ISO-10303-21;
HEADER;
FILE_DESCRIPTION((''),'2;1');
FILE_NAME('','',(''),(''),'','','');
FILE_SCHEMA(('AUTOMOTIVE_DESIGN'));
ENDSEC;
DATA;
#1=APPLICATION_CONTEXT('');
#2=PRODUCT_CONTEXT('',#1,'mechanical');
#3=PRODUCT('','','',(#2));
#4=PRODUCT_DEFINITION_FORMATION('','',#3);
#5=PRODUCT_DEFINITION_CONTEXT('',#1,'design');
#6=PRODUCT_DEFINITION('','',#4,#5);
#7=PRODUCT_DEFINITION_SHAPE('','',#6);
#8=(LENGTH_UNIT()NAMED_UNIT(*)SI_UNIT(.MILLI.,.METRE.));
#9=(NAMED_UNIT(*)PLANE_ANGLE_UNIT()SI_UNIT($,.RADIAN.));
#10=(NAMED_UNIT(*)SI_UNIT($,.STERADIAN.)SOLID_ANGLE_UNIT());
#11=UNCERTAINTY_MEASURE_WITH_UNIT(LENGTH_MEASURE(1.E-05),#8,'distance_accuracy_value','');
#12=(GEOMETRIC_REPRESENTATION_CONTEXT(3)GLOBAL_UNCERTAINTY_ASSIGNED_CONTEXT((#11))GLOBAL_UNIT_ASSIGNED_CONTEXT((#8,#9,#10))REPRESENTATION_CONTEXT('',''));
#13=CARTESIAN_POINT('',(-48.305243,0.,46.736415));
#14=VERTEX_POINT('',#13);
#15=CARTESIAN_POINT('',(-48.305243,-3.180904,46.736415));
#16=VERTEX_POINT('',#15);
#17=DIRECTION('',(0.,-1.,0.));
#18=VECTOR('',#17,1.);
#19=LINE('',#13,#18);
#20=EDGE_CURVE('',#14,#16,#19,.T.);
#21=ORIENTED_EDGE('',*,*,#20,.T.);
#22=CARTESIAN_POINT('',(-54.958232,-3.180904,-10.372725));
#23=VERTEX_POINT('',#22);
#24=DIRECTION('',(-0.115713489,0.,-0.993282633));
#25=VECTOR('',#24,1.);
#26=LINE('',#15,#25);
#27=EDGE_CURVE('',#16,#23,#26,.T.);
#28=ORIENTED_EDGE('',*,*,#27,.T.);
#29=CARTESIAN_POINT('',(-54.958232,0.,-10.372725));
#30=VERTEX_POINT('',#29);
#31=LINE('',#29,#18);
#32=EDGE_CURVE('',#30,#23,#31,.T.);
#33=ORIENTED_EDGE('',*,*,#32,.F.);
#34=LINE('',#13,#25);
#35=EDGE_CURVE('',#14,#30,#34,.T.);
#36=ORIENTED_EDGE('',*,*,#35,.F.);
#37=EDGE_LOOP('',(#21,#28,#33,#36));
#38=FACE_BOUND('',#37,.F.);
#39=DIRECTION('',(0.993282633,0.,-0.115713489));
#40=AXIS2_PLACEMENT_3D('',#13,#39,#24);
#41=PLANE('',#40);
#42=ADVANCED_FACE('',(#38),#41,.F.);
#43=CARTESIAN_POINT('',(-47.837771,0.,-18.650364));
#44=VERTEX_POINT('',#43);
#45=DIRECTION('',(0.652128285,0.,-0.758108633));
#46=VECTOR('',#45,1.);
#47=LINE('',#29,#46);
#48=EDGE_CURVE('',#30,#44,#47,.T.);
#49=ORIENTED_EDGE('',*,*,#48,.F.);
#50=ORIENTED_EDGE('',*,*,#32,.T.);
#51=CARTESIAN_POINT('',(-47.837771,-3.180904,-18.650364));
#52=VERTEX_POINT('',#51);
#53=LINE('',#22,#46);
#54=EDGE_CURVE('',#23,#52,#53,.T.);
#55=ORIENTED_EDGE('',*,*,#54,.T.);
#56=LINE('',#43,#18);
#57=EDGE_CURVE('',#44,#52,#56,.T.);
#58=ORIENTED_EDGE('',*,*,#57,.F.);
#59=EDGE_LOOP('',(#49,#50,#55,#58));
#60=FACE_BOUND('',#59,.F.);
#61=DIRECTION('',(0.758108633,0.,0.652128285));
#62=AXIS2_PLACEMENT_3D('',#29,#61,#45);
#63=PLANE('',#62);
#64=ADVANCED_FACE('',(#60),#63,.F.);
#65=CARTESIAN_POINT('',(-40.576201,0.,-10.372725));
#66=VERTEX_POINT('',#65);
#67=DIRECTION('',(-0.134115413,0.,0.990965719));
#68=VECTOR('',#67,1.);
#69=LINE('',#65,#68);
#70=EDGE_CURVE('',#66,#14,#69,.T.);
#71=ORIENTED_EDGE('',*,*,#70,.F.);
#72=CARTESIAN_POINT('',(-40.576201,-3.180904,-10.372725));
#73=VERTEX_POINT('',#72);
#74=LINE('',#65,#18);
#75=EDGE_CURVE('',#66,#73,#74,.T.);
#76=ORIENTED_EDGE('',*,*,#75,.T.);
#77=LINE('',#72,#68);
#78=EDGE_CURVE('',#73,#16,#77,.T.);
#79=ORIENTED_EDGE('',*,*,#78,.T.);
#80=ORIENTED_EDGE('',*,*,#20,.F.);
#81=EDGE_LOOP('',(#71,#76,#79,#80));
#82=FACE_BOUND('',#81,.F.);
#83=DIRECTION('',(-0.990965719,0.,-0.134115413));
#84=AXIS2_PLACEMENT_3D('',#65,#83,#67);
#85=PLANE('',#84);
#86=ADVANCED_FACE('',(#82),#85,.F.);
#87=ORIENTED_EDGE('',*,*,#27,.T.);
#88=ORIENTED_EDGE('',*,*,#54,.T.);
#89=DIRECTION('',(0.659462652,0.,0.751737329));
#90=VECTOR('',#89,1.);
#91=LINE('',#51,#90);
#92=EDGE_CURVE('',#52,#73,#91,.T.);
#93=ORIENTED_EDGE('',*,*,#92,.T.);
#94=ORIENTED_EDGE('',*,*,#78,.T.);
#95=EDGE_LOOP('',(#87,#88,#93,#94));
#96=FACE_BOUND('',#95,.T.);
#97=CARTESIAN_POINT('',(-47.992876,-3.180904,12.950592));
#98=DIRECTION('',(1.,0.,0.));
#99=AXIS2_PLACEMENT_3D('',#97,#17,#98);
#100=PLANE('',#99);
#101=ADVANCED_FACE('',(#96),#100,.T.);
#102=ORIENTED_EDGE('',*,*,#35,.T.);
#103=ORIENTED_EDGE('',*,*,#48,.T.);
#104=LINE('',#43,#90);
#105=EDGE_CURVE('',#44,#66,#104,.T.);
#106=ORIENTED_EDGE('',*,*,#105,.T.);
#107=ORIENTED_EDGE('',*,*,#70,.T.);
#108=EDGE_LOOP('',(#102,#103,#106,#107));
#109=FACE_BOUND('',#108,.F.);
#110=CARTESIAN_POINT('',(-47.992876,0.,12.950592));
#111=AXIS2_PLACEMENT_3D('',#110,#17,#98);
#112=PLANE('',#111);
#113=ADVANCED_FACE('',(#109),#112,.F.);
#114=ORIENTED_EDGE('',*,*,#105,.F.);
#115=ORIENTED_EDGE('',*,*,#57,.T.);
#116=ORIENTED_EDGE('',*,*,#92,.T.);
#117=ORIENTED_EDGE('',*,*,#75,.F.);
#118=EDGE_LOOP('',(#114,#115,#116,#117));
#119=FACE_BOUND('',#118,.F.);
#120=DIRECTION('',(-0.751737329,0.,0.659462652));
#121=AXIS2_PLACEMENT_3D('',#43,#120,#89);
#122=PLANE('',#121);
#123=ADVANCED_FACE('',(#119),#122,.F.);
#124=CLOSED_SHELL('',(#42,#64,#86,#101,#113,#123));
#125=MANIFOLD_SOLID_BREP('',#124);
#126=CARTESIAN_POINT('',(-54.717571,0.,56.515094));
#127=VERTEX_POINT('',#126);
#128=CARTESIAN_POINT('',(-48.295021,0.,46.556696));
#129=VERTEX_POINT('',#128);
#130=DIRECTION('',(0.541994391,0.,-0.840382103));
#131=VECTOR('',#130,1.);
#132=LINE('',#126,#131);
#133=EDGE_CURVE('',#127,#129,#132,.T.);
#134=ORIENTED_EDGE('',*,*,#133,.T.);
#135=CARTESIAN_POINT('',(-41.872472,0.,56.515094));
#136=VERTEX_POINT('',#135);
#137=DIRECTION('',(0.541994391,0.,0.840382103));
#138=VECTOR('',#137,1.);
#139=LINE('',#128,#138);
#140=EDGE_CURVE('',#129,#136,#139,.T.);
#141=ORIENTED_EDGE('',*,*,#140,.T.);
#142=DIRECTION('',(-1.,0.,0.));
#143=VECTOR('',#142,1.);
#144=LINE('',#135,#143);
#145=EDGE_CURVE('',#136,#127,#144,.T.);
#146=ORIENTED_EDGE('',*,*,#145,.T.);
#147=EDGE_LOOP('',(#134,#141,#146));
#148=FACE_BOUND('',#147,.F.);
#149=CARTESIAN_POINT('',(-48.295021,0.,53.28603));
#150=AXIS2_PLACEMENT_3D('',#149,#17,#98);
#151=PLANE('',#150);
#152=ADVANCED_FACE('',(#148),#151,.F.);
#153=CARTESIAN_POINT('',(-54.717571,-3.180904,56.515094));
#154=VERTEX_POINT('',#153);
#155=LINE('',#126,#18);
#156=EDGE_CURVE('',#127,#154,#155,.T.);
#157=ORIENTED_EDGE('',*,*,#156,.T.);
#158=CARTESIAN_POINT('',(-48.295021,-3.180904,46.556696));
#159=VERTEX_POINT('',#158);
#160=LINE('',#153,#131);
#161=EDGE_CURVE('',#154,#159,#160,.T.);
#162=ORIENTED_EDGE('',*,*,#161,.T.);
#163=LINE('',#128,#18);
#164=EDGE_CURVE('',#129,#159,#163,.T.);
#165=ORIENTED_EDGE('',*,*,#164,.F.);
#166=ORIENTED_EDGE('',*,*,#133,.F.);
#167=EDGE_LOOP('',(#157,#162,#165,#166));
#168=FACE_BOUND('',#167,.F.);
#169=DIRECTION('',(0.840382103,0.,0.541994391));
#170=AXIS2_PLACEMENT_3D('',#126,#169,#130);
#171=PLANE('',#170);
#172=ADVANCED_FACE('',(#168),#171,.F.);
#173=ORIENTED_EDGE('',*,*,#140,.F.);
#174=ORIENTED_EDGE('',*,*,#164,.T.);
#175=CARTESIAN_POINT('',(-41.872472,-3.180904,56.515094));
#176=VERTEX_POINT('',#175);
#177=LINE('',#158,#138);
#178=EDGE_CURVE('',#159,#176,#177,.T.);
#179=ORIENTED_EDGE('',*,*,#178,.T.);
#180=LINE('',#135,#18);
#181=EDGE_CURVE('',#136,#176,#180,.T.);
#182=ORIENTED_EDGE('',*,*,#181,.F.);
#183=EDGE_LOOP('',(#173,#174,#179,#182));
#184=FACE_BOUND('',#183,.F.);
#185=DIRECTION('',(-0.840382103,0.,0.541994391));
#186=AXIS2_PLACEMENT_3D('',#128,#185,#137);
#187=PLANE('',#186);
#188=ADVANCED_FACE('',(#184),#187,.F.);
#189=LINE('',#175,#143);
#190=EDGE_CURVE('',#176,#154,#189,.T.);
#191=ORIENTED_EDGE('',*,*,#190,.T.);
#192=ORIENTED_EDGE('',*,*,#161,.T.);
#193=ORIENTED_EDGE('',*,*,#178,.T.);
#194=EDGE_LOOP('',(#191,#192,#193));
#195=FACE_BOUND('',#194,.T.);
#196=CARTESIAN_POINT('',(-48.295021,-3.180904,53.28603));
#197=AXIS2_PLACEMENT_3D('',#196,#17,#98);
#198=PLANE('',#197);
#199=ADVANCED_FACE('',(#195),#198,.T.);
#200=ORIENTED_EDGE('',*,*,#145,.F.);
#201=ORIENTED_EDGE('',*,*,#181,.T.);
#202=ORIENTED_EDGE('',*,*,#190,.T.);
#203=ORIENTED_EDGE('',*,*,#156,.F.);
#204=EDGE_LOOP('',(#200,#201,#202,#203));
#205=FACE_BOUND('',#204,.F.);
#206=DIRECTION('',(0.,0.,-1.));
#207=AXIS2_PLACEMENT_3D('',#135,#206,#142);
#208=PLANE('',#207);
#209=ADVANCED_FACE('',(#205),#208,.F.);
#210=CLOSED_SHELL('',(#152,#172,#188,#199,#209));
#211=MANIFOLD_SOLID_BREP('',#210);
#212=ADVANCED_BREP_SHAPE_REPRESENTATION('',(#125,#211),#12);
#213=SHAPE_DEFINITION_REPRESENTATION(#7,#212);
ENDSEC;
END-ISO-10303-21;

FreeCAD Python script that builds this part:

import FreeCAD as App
import Part
import Sketcher
Q = App.Units.Quantity


def add_polygon(sketch, points):
    """Adds a closed chain of lines whose ends are joined by coincident constraints."""
    first, n = sketch.GeometryCount, len(points)
    for a, b in zip(points, points[1:] + points[:1]):
        sketch.addGeometry(Part.LineSegment(App.Vector(*a, 0), App.Vector(*b, 0)), False)
    for i in range(n):
        sketch.addConstraint(Sketcher.Constraint("Coincident", first + i, 2, first + (i + 1) % n, 1))

doc = App.newDocument("Part")
body = doc.addObject("PartDesign::Body", "Body")

# Sketch on XZ plane
sketch1 = body.newObject("Sketcher::SketchObject", "Sketch")
sketch1.AttachmentSupport = (doc.getObject("XZ_Plane"), [""])
sketch1.MapMode = "FlatFace"
add_polygon(sketch1, [(-40.576201, -10.372725), (-48.305243, 46.736415), (-54.958232, -10.372725), (-47.837771, -18.650364)])  # lines 0-3
sketch1.addConstraint([
    Sketcher.Constraint("Horizontal", 1, 2, 3, 2),
    Sketcher.Constraint("DistanceX", 3, 2, -1, 1, Q("40.576201 mm")),
    Sketcher.Constraint("Distance", 1, Q("57.495358 mm")),
    Sketcher.Constraint("DistanceX", 1, 2, -1, 1, Q("54.958232 mm")),
    Sketcher.Constraint("DistanceX", 2, 2, -1, 1, Q("47.837771 mm")),
    Sketcher.Constraint("DistanceX", 1, 2, 0, 2, Q("6.652988 mm")),
    Sketcher.Constraint("DistanceY", 2, 2, 1, 2, Q("8.277639 mm")),
    Sketcher.Constraint("DistanceY", -1, 1, 0, 2, Q("46.736415 mm")),
])
pad1 = body.newObject("PartDesign::Pad", "Pad")
pad1.Profile = sketch1
pad1.Length = 3.180904
body2 = doc.addObject("PartDesign::Body", "Body001")

# Sketch on XZ plane
sketch2 = body2.newObject("Sketcher::SketchObject", "Sketch001")
sketch2.AttachmentSupport = (doc.getObject("XZ_Plane001"), [""])
sketch2.MapMode = "FlatFace"
add_polygon(sketch2, [(-41.872472, 56.515094), (-54.717571, 56.515094), (-48.295021, 46.556696)])  # lines 0-2
sketch2.addConstraint([
    Sketcher.Constraint("Horizontal", 0),
    Sketcher.Constraint("Equal", 1, 2),
    Sketcher.Constraint("DistanceX", 0, 2, 0, 1, Q("12.845099 mm")),
    Sketcher.Constraint("DistanceX", 0, 2, -1, 1, Q("54.717571 mm")),
    Sketcher.Constraint("Distance", 1, Q("11.849845 mm")),
    Sketcher.Constraint("DistanceY", -1, 1, 0, 2, Q("56.515094 mm")),
])
pad2 = body2.newObject("PartDesign::Pad", "Pad001")
pad2.Profile = sketch2
pad2.Length = 3.180904

doc.recompute()
